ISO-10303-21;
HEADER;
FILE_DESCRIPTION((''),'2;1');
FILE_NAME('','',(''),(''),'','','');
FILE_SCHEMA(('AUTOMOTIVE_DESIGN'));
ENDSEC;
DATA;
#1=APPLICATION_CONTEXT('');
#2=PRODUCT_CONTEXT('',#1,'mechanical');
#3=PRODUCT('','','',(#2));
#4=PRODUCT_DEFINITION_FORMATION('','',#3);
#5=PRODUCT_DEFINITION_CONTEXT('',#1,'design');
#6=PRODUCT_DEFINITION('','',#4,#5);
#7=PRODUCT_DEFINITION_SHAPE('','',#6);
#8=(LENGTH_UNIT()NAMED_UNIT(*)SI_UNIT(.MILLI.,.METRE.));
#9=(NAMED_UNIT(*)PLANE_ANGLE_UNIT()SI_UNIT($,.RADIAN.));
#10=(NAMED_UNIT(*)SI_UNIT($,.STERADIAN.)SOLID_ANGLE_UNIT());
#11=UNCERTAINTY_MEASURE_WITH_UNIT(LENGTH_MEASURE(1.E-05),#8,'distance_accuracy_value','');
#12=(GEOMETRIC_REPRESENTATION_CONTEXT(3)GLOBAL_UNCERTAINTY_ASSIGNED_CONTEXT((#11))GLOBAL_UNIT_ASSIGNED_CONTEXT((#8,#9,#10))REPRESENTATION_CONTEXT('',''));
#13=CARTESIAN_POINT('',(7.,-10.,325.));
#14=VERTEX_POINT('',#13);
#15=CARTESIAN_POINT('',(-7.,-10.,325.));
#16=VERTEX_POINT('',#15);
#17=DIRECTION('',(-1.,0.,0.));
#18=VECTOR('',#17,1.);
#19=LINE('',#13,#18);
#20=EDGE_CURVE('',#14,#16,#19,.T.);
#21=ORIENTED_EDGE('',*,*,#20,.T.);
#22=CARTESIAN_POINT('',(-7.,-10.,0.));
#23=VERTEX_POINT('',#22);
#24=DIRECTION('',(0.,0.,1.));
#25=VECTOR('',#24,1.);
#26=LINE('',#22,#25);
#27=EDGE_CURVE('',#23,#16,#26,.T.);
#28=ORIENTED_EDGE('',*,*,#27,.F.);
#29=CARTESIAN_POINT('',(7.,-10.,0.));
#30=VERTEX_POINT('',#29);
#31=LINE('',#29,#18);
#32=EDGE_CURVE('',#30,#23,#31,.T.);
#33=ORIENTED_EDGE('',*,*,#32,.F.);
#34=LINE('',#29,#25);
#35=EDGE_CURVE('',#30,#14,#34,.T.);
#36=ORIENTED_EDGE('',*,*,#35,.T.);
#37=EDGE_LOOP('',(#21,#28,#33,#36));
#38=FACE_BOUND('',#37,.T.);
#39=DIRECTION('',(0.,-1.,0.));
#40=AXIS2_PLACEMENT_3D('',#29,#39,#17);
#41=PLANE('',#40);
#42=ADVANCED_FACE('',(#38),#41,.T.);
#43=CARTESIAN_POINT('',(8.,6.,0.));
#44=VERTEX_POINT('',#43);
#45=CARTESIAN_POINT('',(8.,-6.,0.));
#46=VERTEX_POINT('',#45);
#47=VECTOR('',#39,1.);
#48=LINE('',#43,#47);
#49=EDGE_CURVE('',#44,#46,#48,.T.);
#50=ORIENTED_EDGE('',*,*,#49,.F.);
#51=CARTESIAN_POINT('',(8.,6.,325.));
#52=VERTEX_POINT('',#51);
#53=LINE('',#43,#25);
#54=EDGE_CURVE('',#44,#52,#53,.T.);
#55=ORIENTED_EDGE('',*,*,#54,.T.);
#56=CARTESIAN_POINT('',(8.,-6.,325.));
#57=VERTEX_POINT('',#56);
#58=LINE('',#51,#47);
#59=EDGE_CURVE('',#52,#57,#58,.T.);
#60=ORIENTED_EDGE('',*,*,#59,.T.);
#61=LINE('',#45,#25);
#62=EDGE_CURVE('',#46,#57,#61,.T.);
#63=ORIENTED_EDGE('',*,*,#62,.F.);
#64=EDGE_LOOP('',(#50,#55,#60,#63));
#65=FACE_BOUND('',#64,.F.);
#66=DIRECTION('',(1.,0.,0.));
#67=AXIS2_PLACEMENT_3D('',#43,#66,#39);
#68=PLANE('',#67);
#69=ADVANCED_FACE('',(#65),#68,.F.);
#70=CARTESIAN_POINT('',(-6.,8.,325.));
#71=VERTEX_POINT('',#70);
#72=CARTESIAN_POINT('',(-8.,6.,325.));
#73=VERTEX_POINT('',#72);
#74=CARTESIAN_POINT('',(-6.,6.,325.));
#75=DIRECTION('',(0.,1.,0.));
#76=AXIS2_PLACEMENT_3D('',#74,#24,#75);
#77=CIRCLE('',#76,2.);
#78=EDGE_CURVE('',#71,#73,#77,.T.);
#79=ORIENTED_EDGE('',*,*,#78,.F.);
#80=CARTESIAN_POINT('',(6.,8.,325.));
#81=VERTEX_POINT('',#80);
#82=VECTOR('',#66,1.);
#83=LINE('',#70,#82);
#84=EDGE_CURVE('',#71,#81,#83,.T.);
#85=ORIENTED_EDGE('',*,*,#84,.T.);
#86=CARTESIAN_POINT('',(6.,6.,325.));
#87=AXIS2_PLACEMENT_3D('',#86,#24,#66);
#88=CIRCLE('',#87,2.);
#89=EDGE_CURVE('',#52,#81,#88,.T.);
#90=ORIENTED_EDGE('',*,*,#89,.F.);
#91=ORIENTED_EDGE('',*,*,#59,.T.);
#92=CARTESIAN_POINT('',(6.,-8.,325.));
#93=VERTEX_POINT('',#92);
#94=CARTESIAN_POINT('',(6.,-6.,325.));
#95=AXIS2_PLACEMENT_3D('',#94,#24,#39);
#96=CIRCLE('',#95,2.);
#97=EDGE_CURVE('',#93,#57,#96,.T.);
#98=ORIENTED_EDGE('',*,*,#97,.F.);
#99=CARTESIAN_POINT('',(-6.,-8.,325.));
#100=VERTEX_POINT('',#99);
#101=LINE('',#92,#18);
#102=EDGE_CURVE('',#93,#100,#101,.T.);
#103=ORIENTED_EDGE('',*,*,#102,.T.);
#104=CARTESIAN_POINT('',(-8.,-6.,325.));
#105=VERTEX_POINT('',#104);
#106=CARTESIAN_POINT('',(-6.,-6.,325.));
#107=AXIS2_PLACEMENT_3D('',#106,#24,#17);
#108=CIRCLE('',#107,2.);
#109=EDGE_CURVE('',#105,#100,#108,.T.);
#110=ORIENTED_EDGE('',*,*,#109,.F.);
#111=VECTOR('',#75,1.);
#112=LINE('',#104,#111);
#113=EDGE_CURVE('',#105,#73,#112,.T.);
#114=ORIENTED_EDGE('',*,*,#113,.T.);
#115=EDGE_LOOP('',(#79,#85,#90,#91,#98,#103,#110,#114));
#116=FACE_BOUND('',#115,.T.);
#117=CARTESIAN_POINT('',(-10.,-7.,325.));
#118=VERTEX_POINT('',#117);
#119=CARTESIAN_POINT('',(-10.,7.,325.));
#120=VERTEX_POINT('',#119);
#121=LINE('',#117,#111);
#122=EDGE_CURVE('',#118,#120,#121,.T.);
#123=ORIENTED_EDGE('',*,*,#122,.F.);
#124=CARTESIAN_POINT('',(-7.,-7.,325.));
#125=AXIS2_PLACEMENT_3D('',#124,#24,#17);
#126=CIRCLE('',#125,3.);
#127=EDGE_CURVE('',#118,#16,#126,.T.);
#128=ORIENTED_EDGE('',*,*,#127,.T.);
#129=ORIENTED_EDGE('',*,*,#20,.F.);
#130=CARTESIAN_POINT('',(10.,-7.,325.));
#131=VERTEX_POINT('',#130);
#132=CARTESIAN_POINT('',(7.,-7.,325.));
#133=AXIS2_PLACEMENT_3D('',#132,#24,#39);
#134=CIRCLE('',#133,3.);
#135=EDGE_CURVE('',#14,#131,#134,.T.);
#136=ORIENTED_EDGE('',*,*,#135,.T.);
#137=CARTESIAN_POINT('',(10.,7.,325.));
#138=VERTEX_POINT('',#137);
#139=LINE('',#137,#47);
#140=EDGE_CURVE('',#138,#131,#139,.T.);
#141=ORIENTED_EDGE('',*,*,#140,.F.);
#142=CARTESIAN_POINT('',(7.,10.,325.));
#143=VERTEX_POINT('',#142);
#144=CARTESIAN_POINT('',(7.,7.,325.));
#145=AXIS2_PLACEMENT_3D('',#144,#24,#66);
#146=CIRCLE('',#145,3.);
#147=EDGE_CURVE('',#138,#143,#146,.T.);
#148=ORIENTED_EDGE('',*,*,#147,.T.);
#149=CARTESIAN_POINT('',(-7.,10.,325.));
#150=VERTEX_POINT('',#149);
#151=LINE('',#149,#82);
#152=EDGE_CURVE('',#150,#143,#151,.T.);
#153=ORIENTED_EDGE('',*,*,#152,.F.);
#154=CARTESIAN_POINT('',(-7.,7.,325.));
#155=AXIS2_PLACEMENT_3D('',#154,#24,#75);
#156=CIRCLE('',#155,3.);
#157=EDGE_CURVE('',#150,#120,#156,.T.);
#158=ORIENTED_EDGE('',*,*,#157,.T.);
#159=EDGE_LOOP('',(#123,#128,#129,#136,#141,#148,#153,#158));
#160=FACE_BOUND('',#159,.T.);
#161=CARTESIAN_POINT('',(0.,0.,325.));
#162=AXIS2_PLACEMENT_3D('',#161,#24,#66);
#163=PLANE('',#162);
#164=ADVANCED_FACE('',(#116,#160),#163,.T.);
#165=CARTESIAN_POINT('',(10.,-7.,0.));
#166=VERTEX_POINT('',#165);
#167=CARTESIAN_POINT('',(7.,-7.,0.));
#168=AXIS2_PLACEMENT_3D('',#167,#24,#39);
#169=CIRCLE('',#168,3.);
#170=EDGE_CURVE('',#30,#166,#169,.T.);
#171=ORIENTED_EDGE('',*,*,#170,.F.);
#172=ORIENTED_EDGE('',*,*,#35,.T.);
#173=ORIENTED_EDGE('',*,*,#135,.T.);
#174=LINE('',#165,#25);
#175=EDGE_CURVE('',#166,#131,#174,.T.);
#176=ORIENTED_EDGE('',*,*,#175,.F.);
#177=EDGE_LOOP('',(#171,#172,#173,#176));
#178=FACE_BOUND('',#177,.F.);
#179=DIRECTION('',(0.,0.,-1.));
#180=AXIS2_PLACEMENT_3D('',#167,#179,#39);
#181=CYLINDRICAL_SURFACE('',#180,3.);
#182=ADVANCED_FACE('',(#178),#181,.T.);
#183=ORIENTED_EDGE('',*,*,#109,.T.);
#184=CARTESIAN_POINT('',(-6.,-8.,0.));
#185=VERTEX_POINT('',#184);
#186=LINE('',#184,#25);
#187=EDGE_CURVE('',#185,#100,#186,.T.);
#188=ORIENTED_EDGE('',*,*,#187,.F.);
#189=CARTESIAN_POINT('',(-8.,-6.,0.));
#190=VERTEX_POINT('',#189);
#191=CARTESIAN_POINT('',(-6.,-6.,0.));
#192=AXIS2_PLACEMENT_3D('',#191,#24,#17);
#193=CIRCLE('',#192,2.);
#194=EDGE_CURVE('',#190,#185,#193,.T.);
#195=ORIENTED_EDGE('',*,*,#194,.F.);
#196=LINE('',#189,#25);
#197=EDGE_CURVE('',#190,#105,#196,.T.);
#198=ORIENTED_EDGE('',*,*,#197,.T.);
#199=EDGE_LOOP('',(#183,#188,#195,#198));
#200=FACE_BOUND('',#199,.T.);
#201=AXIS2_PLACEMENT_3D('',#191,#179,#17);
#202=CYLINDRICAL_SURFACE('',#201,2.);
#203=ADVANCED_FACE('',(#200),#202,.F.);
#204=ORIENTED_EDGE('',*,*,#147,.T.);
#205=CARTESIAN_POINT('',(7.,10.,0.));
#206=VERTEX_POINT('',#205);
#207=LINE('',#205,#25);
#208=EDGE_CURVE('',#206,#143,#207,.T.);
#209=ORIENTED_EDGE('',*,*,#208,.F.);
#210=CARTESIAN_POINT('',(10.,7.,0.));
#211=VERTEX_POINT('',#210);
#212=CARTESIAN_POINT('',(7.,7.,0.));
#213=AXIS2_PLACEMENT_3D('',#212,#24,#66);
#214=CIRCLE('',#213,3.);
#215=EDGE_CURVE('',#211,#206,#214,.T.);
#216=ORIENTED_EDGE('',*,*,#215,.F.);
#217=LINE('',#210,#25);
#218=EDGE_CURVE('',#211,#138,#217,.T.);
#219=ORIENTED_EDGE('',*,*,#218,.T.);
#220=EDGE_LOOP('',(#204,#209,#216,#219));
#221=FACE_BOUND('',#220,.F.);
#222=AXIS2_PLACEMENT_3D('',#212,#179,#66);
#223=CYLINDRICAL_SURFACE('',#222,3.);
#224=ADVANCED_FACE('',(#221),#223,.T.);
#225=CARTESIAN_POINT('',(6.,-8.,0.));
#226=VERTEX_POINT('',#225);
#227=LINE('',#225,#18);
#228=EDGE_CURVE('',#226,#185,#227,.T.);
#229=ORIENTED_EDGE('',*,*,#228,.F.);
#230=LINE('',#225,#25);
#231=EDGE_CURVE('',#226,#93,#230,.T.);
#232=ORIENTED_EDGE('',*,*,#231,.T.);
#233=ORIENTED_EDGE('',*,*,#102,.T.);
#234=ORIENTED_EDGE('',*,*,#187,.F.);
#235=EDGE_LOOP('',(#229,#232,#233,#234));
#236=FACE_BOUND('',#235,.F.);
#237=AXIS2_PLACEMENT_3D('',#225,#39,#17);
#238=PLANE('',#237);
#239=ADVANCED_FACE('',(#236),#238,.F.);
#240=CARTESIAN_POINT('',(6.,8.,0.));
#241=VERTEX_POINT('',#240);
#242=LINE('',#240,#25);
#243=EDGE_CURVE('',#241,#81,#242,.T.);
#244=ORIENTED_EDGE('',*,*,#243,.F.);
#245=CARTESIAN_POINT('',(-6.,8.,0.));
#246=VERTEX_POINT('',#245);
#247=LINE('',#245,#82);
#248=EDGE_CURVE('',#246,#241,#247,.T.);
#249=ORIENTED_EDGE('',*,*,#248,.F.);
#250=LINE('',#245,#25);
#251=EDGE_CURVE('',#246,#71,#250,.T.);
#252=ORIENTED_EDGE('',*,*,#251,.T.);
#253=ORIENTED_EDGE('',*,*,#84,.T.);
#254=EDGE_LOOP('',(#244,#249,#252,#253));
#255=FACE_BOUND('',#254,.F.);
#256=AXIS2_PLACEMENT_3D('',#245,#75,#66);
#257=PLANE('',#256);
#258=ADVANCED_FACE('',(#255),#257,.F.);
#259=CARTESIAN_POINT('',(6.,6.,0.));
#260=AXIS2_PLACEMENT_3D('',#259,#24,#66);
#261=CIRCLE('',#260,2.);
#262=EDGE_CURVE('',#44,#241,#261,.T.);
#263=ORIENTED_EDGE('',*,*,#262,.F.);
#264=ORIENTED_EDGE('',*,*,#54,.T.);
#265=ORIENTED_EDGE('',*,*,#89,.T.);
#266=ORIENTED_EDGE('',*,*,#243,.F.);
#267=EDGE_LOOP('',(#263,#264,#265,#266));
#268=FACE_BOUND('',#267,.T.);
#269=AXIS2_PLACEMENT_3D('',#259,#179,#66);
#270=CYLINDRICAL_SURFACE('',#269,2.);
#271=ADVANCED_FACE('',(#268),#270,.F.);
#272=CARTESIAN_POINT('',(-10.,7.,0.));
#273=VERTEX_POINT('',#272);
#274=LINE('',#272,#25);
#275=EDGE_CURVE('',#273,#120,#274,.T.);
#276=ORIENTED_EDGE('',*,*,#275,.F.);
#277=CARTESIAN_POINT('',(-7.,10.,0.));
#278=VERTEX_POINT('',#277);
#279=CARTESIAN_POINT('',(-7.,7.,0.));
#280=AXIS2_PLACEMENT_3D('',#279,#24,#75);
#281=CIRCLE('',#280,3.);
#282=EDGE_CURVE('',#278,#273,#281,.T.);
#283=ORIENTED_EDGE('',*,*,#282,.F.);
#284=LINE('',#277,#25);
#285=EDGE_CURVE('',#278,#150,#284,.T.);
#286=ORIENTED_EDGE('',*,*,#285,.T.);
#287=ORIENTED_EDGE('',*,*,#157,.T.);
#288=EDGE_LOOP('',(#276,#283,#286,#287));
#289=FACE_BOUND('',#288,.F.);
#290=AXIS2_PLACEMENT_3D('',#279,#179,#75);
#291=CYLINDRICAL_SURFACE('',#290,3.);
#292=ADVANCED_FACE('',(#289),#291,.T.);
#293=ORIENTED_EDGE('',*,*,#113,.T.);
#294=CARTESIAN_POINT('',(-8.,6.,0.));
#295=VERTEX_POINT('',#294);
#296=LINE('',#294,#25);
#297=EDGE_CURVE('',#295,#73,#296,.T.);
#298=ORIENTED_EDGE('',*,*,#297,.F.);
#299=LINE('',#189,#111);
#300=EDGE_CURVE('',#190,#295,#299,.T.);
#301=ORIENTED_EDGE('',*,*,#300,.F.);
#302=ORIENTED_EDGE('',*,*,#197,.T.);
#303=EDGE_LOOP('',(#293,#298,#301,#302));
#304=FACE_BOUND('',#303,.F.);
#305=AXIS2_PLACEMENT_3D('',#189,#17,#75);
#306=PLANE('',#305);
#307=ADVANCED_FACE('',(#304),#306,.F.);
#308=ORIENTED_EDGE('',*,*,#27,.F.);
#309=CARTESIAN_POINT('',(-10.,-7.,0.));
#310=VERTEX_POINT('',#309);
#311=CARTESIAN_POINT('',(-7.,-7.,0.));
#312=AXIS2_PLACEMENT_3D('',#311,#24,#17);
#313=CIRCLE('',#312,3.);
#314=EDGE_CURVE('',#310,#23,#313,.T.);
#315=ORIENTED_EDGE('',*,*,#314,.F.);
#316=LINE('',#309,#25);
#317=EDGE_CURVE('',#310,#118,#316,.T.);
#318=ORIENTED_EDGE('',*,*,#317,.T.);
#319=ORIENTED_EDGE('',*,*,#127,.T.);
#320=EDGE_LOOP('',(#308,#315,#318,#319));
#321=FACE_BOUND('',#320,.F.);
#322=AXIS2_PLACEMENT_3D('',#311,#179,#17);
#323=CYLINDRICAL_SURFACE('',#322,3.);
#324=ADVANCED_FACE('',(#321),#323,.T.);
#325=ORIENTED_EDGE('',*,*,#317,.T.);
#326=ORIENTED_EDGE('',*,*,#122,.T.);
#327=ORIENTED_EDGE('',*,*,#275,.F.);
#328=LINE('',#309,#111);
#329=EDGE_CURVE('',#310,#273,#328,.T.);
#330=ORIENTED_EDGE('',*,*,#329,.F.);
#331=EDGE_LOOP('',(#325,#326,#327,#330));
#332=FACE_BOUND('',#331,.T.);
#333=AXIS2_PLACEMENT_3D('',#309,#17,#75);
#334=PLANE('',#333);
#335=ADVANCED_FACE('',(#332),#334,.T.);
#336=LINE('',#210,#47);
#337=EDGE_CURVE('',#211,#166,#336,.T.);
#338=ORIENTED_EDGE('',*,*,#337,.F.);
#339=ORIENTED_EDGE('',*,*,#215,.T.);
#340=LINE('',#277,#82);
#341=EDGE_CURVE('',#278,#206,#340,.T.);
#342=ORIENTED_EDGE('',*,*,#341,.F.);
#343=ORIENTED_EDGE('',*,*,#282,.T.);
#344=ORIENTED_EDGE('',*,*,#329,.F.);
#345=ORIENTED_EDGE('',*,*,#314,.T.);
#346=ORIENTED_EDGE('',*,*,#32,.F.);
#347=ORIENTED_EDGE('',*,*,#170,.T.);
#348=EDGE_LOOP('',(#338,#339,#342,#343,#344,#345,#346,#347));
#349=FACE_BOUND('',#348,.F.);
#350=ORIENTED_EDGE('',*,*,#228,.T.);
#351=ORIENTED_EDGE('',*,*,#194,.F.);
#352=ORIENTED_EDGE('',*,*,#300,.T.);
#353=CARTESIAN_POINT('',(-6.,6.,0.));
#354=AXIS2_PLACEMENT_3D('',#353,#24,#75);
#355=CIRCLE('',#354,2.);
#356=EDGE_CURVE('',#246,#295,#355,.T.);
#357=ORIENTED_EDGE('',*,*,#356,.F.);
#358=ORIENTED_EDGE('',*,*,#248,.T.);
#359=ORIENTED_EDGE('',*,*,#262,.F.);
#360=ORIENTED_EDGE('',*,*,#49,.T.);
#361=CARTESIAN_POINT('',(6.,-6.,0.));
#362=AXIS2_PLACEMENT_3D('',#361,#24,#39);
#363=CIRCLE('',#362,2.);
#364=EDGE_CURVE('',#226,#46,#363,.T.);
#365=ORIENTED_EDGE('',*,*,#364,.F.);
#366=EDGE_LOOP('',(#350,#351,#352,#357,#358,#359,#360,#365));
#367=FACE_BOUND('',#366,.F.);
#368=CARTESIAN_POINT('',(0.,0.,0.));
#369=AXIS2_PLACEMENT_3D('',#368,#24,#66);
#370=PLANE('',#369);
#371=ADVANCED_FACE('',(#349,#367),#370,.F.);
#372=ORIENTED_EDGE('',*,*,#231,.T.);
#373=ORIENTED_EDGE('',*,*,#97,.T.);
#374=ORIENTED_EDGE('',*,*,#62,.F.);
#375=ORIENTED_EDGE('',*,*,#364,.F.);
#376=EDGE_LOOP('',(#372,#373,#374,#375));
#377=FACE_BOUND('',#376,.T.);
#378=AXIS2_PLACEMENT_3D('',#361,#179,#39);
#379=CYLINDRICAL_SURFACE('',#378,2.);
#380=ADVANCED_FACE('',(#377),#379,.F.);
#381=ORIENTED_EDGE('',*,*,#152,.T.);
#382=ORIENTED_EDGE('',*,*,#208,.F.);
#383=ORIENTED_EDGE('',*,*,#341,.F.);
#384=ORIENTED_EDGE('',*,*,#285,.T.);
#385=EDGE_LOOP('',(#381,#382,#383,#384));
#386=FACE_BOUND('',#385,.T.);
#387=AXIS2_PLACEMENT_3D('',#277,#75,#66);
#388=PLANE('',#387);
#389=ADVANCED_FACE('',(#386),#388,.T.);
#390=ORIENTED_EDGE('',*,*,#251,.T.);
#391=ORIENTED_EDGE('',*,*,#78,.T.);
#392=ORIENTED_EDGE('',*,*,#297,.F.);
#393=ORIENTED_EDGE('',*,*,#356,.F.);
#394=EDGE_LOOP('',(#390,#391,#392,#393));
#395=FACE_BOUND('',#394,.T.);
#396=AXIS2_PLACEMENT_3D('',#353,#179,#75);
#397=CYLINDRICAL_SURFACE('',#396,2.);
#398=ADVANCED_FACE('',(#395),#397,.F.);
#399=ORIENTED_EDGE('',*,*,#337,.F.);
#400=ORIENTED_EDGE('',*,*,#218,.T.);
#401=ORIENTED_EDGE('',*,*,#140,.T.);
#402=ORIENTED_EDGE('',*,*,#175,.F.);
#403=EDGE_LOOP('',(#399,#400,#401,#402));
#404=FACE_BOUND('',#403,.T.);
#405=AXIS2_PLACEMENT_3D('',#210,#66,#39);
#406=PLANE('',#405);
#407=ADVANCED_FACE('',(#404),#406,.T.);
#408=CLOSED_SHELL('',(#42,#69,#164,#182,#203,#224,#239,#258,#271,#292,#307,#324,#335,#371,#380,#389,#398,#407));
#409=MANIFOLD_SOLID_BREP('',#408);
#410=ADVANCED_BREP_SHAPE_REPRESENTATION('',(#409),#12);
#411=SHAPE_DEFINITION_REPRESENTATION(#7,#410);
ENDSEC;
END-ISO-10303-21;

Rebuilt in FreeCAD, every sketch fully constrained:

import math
import FreeCAD as App
import Part
import Sketcher

V = App.Vector

doc = App.newDocument("Part")
body = doc.addObject("PartDesign::Body", "Body")

sketch1 = doc.addObject("Sketcher::SketchObject", "Sketch")
body.addObject(sketch1)
sketch1.AttachmentSupport = (doc.XY_Plane, [""])
sketch1.MapMode = "FlatFace"
sketch1.addGeometry(Part.LineSegment(V(-10, 7, 0), V(-10, -7, 0)), False)
sketch1.addGeometry(Part.ArcOfCircle(Part.Circle(V(-7, -7, 0), V(0, 0, 1), 3), math.radians(180), math.radians(270)), False)
sketch1.addGeometry(Part.LineSegment(V(-7, -10, 0), V(7, -10, 0)), False)
sketch1.addGeometry(Part.ArcOfCircle(Part.Circle(V(7, -7, 0), V(0, 0, 1), 3), math.radians(-90), math.radians(0)), False)
sketch1.addGeometry(Part.LineSegment(V(10, -7, 0), V(10, 7, 0)), False)
sketch1.addGeometry(Part.ArcOfCircle(Part.Circle(V(7, 7, 0), V(0, 0, 1), 3), math.radians(0), math.radians(90)), False)
sketch1.addGeometry(Part.LineSegment(V(7, 10, 0), V(-7, 10, 0)), False)
sketch1.addGeometry(Part.ArcOfCircle(Part.Circle(V(-7, 7, 0), V(0, 0, 1), 3), math.radians(90), math.radians(180)), False)
sketch1.addGeometry(Part.ArcOfCircle(Part.Circle(V(-6, 6, 0), V(0, 0, 1), 2), math.radians(90), math.radians(180)), False)
sketch1.addGeometry(Part.LineSegment(V(-6, 8, 0), V(6, 8, 0)), False)
sketch1.addGeometry(Part.ArcOfCircle(Part.Circle(V(6, 6, 0), V(0, 0, 1), 2), math.radians(0), math.radians(90)), False)
sketch1.addGeometry(Part.LineSegment(V(8, 6, 0), V(8, -6, 0)), False)
sketch1.addGeometry(Part.ArcOfCircle(Part.Circle(V(6, -6, 0), V(0, 0, 1), 2), math.radians(-90), math.radians(0)), False)
sketch1.addGeometry(Part.LineSegment(V(6, -8, 0), V(-6, -8, 0)), False)
sketch1.addGeometry(Part.ArcOfCircle(Part.Circle(V(-6, -6, 0), V(0, 0, 1), 2), math.radians(180), math.radians(270)), False)
sketch1.addGeometry(Part.LineSegment(V(-8, -6, 0), V(-8, 6, 0)), False)
sketch1.addConstraint(Sketcher.Constraint("Tangent", 0, 2, 1, 1))
sketch1.addConstraint(Sketcher.Constraint("Tangent", 1, 2, 2, 1))
sketch1.addConstraint(Sketcher.Constraint("Tangent", 2, 2, 3, 1))
sketch1.addConstraint(Sketcher.Constraint("Tangent", 3, 2, 4, 1))
sketch1.addConstraint(Sketcher.Constraint("Tangent", 4, 2, 5, 1))
sketch1.addConstraint(Sketcher.Constraint("Tangent", 5, 2, 6, 1))
sketch1.addConstraint(Sketcher.Constraint("Tangent", 6, 2, 7, 1))
sketch1.addConstraint(Sketcher.Constraint("Tangent", 7, 2, 0, 1))
sketch1.addConstraint(Sketcher.Constraint("Tangent", 8, 1, 9, 1))
sketch1.addConstraint(Sketcher.Constraint("Tangent", 9, 2, 10, 2))
sketch1.addConstraint(Sketcher.Constraint("Tangent", 10, 1, 11, 1))
sketch1.addConstraint(Sketcher.Constraint("Tangent", 11, 2, 12, 2))
sketch1.addConstraint(Sketcher.Constraint("Tangent", 12, 1, 13, 1))
sketch1.addConstraint(Sketcher.Constraint("Tangent", 13, 2, 14, 2))
sketch1.addConstraint(Sketcher.Constraint("Tangent", 14, 1, 15, 1))
sketch1.addConstraint(Sketcher.Constraint("Tangent", 15, 2, 8, 2))
sketch1.addConstraint(Sketcher.Constraint("Vertical", 0))
sketch1.addConstraint(Sketcher.Constraint("Horizontal", 2))
sketch1.addConstraint(Sketcher.Constraint("Vertical", 4))
sketch1.addConstraint(Sketcher.Constraint("Horizontal", 6))
sketch1.addConstraint(Sketcher.Constraint("Horizontal", 9))
sketch1.addConstraint(Sketcher.Constraint("Vertical", 11))
sketch1.addConstraint(Sketcher.Constraint("Horizontal", 13))
sketch1.addConstraint(Sketcher.Constraint("Vertical", 15))
sketch1.addConstraint(Sketcher.Constraint("Equal", 1, 3))
sketch1.addConstraint(Sketcher.Constraint("Equal", 3, 5))
sketch1.addConstraint(Sketcher.Constraint("Equal", 5, 7))
sketch1.addConstraint(Sketcher.Constraint("Equal", 8, 10))
sketch1.addConstraint(Sketcher.Constraint("Equal", 10, 12))
sketch1.addConstraint(Sketcher.Constraint("Equal", 12, 14))
sketch1.addConstraint(Sketcher.Constraint("Symmetric", 1, 3, 5, 3, -1, 1))
sketch1.addConstraint(Sketcher.Constraint("Symmetric", 8, 3, 12, 3, -1, 1))
sketch1.addConstraint(Sketcher.Constraint("Equal", 6, 0))
sketch1.addConstraint(Sketcher.Constraint("Equal", 13, 11))
sketch1.addConstraint(Sketcher.Constraint("Radius", 1, 3.0))
sketch1.addConstraint(Sketcher.Constraint("Radius", 8, 2.0))
sketch1.addConstraint(Sketcher.Constraint("DistanceX", 0, 2, -1, 1, 10.0))
sketch1.addConstraint(Sketcher.Constraint("DistanceY", 8, 1, 6, 2, 2.0))
pad1 = doc.addObject("PartDesign::Pad", "Pad")
body.addObject(pad1)
pad1.Profile = sketch1
pad1.Length = 325

doc.recompute()
